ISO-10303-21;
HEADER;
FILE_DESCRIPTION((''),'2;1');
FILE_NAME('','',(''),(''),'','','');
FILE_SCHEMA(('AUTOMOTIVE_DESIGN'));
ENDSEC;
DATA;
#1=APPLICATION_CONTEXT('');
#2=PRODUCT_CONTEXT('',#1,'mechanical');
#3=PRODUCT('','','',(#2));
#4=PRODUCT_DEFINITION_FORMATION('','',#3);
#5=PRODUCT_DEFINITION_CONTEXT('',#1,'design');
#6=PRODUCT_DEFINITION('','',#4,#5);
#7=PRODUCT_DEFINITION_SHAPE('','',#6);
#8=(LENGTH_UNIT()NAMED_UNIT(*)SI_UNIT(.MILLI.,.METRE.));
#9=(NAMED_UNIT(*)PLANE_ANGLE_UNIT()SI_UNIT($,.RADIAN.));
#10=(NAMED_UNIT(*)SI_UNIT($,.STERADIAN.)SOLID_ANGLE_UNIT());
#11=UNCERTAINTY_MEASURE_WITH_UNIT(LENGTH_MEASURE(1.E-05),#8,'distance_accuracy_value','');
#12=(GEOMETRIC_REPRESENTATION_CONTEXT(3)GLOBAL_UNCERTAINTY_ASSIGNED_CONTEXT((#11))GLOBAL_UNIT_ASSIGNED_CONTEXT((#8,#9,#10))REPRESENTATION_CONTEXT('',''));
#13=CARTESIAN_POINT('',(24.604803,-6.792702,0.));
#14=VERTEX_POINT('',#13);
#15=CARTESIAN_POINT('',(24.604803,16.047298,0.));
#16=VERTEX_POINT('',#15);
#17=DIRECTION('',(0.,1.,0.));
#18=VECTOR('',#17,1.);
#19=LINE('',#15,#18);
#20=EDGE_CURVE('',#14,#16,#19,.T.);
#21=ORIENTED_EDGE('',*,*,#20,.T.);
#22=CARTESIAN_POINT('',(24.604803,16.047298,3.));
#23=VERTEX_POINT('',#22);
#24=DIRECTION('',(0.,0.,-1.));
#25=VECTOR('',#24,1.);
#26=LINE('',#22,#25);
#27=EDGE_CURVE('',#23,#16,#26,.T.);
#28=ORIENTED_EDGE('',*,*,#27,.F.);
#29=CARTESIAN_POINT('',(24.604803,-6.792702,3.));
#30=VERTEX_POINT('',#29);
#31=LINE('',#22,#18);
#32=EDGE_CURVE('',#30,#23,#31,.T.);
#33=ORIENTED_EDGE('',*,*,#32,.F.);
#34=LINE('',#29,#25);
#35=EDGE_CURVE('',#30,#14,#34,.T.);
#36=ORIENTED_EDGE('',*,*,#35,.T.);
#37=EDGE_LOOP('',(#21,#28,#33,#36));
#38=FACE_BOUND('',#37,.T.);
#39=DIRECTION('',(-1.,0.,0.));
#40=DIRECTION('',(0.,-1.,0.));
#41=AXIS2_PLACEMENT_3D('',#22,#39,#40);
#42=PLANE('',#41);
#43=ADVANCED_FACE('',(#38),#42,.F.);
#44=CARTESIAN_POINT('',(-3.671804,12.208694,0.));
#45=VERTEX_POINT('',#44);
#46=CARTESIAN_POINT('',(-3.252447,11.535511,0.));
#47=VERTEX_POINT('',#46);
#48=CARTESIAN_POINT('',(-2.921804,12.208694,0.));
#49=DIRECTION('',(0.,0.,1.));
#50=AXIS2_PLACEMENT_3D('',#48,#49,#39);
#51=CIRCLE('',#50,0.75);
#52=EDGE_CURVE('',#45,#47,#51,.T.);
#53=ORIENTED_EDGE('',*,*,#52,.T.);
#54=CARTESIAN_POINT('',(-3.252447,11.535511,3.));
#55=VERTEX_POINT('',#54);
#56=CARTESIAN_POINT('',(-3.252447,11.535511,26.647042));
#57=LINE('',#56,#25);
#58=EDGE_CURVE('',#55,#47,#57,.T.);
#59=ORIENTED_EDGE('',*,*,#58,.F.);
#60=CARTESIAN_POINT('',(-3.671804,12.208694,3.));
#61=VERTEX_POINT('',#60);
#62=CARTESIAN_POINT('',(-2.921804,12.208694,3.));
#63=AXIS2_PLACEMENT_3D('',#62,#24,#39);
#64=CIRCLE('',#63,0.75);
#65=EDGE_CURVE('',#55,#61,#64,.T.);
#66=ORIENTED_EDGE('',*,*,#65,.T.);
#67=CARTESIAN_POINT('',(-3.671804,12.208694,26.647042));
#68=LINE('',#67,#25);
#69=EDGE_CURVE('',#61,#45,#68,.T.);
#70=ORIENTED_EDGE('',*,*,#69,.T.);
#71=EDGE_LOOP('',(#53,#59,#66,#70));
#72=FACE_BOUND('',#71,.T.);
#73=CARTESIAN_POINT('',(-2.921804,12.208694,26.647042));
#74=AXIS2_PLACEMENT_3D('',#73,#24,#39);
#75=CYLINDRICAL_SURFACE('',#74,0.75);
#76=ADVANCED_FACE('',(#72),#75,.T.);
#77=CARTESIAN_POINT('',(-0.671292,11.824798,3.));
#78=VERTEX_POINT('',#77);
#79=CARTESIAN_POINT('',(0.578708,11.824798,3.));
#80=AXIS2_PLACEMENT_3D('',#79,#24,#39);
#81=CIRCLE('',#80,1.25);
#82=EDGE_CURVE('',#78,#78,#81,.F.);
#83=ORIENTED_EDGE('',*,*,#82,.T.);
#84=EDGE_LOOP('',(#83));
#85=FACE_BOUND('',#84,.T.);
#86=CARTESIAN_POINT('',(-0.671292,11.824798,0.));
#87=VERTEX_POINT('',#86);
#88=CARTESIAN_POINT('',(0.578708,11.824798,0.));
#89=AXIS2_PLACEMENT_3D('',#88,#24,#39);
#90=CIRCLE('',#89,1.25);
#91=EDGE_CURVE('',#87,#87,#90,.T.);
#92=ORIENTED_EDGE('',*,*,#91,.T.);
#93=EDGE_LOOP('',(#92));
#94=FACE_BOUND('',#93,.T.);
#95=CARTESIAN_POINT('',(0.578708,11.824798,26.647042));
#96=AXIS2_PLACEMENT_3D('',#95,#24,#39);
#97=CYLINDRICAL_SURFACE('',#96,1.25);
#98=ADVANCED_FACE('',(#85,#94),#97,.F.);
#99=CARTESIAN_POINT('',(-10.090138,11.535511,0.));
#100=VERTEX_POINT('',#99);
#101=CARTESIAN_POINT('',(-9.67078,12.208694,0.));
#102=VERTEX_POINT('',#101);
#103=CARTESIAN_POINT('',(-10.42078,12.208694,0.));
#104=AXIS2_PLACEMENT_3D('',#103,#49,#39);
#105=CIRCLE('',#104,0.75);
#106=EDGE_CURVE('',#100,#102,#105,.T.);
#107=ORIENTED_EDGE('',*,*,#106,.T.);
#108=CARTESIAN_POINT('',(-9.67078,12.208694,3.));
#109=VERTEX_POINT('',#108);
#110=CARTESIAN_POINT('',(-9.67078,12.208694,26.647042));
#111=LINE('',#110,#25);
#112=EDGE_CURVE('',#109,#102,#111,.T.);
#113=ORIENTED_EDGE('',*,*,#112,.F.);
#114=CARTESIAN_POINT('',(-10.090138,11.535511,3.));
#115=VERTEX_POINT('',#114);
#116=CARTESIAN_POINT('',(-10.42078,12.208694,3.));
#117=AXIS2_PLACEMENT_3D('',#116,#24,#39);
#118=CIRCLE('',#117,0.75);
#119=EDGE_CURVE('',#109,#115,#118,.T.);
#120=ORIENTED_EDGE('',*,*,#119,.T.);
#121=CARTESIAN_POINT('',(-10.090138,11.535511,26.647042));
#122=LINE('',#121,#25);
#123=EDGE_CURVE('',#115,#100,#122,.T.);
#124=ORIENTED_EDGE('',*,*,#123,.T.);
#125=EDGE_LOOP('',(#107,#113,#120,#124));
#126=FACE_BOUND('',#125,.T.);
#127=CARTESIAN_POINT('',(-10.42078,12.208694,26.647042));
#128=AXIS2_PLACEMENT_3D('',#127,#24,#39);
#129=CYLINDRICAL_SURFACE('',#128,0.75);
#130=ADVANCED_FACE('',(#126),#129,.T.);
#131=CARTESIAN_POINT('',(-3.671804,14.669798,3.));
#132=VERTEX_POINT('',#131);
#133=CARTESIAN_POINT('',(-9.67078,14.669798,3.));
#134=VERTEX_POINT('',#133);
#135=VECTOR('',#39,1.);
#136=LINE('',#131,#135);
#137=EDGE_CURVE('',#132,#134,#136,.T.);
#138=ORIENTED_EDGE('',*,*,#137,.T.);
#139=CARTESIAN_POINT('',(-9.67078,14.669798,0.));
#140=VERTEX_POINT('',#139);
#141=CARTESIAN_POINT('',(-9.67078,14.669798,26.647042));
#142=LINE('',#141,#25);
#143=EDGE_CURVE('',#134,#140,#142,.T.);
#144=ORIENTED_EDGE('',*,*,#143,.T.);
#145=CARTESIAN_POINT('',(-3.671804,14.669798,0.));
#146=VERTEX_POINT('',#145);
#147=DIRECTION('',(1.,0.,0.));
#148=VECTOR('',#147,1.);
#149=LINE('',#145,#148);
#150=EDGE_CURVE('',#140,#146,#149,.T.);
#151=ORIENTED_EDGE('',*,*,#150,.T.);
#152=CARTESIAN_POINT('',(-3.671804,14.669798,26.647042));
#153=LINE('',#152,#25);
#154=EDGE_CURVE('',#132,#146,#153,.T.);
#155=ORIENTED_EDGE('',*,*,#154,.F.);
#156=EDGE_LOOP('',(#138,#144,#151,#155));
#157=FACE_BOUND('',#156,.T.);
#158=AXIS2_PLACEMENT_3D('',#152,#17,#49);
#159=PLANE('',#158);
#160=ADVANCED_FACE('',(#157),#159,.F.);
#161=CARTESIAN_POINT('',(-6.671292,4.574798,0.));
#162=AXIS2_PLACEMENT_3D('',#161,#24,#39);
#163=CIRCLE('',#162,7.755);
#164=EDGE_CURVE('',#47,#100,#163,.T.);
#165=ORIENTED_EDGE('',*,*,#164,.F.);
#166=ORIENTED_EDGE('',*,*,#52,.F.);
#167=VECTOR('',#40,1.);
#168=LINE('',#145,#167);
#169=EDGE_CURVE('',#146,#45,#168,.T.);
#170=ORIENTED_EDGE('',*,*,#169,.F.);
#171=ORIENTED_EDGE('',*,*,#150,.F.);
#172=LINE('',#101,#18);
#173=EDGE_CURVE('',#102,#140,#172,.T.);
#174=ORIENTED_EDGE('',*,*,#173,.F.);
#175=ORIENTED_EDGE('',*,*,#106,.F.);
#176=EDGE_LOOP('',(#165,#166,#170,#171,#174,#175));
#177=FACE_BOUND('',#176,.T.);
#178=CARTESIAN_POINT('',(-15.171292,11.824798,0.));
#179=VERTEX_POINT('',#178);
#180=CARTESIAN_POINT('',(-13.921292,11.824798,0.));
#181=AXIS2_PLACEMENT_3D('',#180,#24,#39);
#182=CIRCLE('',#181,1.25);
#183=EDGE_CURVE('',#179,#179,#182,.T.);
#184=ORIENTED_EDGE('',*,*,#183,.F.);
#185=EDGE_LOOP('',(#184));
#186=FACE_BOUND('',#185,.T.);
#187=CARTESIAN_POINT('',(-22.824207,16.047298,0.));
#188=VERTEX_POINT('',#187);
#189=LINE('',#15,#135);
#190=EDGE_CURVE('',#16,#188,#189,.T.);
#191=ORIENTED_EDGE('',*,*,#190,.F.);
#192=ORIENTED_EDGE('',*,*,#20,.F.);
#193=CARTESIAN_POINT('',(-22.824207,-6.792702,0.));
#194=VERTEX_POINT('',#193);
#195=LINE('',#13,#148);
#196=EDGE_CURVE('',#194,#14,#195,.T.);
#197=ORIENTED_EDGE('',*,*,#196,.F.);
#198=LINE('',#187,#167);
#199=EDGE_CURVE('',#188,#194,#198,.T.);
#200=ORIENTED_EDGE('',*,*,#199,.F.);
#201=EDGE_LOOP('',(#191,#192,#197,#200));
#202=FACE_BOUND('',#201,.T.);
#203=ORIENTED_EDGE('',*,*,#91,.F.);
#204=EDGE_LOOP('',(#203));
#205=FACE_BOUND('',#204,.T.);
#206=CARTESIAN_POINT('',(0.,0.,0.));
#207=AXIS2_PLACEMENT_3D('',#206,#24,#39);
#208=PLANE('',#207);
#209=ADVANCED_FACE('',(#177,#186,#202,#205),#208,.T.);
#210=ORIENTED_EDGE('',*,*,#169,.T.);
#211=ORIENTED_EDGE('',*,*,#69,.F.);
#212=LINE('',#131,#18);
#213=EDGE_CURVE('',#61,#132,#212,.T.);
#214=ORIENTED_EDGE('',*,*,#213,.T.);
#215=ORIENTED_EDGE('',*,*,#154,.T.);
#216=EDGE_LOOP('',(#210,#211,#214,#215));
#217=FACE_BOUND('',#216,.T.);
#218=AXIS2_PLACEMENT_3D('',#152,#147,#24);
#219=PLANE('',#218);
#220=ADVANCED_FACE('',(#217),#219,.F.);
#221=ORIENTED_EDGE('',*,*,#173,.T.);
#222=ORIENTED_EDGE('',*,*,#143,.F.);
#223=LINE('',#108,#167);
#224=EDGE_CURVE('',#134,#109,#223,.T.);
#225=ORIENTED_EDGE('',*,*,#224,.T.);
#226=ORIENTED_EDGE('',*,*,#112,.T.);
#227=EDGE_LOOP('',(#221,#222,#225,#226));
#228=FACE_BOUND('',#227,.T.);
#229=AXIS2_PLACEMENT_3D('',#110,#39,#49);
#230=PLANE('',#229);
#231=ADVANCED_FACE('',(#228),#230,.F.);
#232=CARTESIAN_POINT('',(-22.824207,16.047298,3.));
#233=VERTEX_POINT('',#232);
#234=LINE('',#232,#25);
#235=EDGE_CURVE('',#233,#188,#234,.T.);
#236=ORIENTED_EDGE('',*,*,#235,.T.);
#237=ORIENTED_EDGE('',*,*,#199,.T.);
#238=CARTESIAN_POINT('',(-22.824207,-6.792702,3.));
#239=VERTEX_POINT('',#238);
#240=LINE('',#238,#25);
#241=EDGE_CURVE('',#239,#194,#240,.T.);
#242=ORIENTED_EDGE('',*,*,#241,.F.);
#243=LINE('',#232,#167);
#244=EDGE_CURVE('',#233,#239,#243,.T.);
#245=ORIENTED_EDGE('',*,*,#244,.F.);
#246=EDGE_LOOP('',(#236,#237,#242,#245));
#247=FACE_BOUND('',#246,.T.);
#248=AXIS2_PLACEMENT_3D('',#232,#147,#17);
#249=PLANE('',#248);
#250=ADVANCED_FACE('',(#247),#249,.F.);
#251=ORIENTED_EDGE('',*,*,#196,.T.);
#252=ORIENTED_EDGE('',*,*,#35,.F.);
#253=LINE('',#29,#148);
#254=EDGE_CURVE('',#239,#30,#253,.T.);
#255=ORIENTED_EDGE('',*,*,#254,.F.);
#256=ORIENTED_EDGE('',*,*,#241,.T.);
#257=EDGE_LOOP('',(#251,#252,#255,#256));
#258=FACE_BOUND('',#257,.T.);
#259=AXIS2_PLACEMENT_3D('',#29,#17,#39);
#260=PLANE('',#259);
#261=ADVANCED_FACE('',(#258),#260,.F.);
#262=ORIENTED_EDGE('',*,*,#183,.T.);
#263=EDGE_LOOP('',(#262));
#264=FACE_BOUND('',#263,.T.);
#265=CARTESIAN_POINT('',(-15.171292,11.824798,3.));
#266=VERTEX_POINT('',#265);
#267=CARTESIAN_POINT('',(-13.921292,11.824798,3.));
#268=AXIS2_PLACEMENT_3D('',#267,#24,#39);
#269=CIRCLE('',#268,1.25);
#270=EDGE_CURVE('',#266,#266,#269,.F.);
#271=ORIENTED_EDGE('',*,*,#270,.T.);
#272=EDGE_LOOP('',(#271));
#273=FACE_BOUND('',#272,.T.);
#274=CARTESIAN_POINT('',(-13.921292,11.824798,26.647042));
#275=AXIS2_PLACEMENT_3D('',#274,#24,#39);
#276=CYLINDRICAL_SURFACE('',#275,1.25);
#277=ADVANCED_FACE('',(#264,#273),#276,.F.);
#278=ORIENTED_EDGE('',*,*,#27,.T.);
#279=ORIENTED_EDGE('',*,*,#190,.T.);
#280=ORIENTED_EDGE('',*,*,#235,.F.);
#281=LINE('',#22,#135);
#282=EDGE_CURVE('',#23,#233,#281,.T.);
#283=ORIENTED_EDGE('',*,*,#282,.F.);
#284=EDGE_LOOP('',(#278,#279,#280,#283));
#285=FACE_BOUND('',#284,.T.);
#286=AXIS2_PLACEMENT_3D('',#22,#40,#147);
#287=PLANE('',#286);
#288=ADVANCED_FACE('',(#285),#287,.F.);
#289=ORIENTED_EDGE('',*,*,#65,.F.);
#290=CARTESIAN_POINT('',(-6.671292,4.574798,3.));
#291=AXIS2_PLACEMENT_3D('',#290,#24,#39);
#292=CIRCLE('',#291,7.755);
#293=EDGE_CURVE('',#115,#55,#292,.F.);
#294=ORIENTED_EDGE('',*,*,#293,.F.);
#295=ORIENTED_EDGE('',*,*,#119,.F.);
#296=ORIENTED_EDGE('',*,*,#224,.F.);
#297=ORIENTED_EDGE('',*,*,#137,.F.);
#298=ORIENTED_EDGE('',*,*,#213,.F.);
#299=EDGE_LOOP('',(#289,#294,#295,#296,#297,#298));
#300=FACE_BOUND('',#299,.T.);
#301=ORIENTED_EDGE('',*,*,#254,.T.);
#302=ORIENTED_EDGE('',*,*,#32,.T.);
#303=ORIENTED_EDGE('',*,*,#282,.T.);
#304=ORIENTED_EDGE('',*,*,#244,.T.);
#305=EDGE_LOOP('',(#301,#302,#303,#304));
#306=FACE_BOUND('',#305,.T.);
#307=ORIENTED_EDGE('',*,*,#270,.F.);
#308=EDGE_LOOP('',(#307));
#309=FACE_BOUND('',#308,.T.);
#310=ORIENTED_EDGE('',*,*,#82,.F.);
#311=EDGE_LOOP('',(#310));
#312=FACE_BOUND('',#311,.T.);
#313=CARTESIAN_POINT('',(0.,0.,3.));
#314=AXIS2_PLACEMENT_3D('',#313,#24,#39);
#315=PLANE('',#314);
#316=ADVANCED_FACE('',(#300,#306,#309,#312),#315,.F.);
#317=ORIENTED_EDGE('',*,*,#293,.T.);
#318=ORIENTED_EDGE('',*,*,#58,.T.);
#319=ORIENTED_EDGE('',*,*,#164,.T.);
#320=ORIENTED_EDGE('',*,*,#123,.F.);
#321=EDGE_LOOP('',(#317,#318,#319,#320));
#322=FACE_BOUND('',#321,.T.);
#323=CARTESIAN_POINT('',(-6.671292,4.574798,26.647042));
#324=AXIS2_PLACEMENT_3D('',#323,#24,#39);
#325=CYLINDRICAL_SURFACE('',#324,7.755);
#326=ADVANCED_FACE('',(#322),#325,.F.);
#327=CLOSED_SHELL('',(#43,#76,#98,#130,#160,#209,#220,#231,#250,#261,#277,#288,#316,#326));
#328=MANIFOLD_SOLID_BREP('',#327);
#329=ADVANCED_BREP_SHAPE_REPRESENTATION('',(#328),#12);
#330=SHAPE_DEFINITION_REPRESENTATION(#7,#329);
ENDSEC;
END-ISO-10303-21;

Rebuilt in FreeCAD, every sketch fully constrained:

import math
import FreeCAD as App
import Part
import Sketcher
Q = App.Units.Quantity


def add_polygon(sketch, points):
    """Adds a closed chain of lines whose ends are joined by coincident constraints."""
    first, n = sketch.GeometryCount, len(points)
    for a, b in zip(points, points[1:] + points[:1]):
        sketch.addGeometry(Part.LineSegment(App.Vector(*a, 0), App.Vector(*b, 0)), False)
    for i in range(n):
        sketch.addConstraint(Sketcher.Constraint("Coincident", first + i, 2, first + (i + 1) % n, 1))

doc = App.newDocument("Part")
body = doc.addObject("PartDesign::Body", "Body")

# Sketch on XY plane
sketch1 = body.newObject("Sketcher::SketchObject", "Sketch")
sketch1.AttachmentSupport = (doc.getObject("XY_Plane"), [""])
sketch1.MapMode = "FlatFace"
add_polygon(sketch1, [(-23, 16), (-23, -7), (25, -7), (25, 16)])  # lines 0-3
sketch1.addConstraint(Sketcher.Constraint("Vertical", 0))
sketch1.addConstraint(Sketcher.Constraint("Horizontal", 1))
sketch1.addConstraint(Sketcher.Constraint("Vertical", 2))
sketch1.addConstraint(Sketcher.Constraint("Horizontal", 3))
sketch1.addConstraint(Sketcher.Constraint("DistanceY", 0, 2, 0, 1, Q("22.84 mm")))
sketch1.addConstraint(Sketcher.Constraint("DistanceX", 1, 1, 1, 2, Q("47.429011 mm")))
sketch1.addConstraint(Sketcher.Constraint("DistanceX", 0, 2, -1, 1, Q("22.824207 mm")))
sketch1.addConstraint(Sketcher.Constraint("DistanceY", 0, 2, -1, 1, Q("6.792702 mm")))
pad1 = body.newObject("PartDesign::Pad", "Pad")
pad1.Profile = sketch1
pad1.Length = 3

# Sketch on XY plane
sketch2 = body.newObject("Sketcher::SketchObject", "Sketch001")
sketch2.AttachmentSupport = (doc.getObject("XY_Plane"), [""])
sketch2.MapMode = "FlatFace"
sketch2.addGeometry(Part.Circle(App.Vector(0.6, 11.8, 0), App.Vector(0, 0, 1), 1.2), False)
sketch2.addGeometry(Part.Circle(App.Vector(-13.9, 11.8, 0), App.Vector(0, 0, 1), 1.2), False)
sketch2.addGeometry(Part.LineSegment(App.Vector(-9.7, 14.7, 0), App.Vector(-3.7, 14.7, 0)), False)
sketch2.addGeometry(Part.LineSegment(App.Vector(-3.7, 14.7, 0), App.Vector(-3.7, 12.2, 0)), False)
sketch2.addGeometry(Part.ArcOfCircle(Part.Circle(App.Vector(-2.9, 12.2, 0), App.Vector(0, 0, 1), 0.7), math.radians(180), math.radians(244)), False)
sketch2.addGeometry(Part.ArcOfCircle(Part.Circle(App.Vector(-6.7, 4.6, 0), App.Vector(0, 0, 1), 7.8), math.radians(116), math.radians(424)), False)
sketch2.addGeometry(Part.ArcOfCircle(Part.Circle(App.Vector(-10.4, 12.2, 0), App.Vector(0, 0, 1), 0.7), math.radians(-64), math.radians(0)), False)
sketch2.addGeometry(Part.LineSegment(App.Vector(-9.7, 12.2, 0), App.Vector(-9.7, 14.7, 0)), False)
sketch2.addConstraint(Sketcher.Constraint("Coincident", 2, 2, 3, 1))
sketch2.addConstraint(Sketcher.Constraint("Tangent", 3, 2, 4, 1))
sketch2.addConstraint(Sketcher.Constraint("Tangent", 4, 2, 5, 2))
sketch2.addConstraint(Sketcher.Constraint("Tangent", 5, 1, 6, 1))
sketch2.addConstraint(Sketcher.Constraint("Tangent", 6, 2, 7, 1))
sketch2.addConstraint(Sketcher.Constraint("Coincident", 7, 2, 2, 1))
sketch2.addConstraint(Sketcher.Constraint("Horizontal", 2))
sketch2.addConstraint(Sketcher.Constraint("Vertical", 3))
sketch2.addConstraint(Sketcher.Constraint("Vertical", 7))
sketch2.addConstraint(Sketcher.Constraint("Equal", 0, 1))
sketch2.addConstraint(Sketcher.Constraint("Equal", 4, 6))
sketch2.addConstraint(Sketcher.Constraint("Horizontal", 0, 3, 1, 3))
sketch2.addConstraint(Sketcher.Constraint("Horizontal", 4, 3, 6, 3))
sketch2.addConstraint(Sketcher.Constraint("Diameter", 0, Q("2.5 mm")))
sketch2.addConstraint(Sketcher.Constraint("Radius", 4, Q("0.75 mm")))
sketch2.addConstraint(Sketcher.Constraint("Radius", 5, Q("7.755 mm")))
sketch2.addConstraint(Sketcher.Constraint("DistanceX", 1, 3, 0, 3, Q("14.5 mm")))
sketch2.addConstraint(Sketcher.Constraint("DistanceX", 5, 3, 0, 3, Q("7.25 mm")))
sketch2.addConstraint(Sketcher.Constraint("DistanceY", 5, 3, 0, 3, Q("7.25 mm")))
sketch2.addConstraint(Sketcher.Constraint("DistanceY", 0, 3, 2, 2, Q("2.845 mm")))
sketch2.addConstraint(Sketcher.Constraint("DistanceX", 2, 1, 2, 2, Q("5.998977 mm")))
sketch2.addConstraint(Sketcher.Constraint("DistanceX", 6, 3, -1, 1, Q("10.42078 mm")))
sketch2.addConstraint(Sketcher.Constraint("DistanceY", -1, 1, 4, 2, Q("11.535511 mm")))
pocket1 = body.newObject("PartDesign::Pocket", "Pocket")
pocket1.Profile = sketch2
pocket1.Length = 3
pocket1.Reversed = True

doc.recompute()
